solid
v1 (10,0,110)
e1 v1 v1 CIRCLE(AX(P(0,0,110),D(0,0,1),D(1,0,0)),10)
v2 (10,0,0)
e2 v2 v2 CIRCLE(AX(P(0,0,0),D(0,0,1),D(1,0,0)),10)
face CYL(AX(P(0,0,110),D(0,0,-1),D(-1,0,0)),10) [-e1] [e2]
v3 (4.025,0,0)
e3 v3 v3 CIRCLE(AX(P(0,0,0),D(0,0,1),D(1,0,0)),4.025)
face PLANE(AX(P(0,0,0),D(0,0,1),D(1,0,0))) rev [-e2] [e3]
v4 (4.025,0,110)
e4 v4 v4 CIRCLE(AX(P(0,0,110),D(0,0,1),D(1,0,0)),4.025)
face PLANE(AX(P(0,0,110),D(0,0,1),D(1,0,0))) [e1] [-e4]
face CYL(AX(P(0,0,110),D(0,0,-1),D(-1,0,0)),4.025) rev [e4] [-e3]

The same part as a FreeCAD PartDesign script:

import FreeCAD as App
import Part
import Sketcher

doc = App.newDocument("Part")
body = doc.addObject("PartDesign::Body", "Body")

sketch1 = body.newObject("Sketcher::SketchObject", "Sketch")
sketch1.AttachmentSupport = (doc.getObject("XY_Plane"), [""])
sketch1.MapMode = "FlatFace"
sketch1.addGeometry(Part.Circle(App.Vector(0, 0, 0), App.Vector(0, 0, 1), 10), False)
sketch1.addGeometry(Part.Circle(App.Vector(0, 0, 0), App.Vector(0, 0, 1), 4), False)
sketch1.addConstraint(Sketcher.Constraint("Coincident", 0, 3, -1, 1))
sketch1.addConstraint(Sketcher.Constraint("Coincident", 1, 3, -1, 1))
sketch1.addConstraint(Sketcher.Constraint("Diameter", 0, 20.0))
sketch1.addConstraint(Sketcher.Constraint("Diameter", 1, 8.05))
pad1 = body.newObject("PartDesign::Pad", "Pad")
pad1.Profile = sketch1
pad1.Length = 110

doc.recompute()
